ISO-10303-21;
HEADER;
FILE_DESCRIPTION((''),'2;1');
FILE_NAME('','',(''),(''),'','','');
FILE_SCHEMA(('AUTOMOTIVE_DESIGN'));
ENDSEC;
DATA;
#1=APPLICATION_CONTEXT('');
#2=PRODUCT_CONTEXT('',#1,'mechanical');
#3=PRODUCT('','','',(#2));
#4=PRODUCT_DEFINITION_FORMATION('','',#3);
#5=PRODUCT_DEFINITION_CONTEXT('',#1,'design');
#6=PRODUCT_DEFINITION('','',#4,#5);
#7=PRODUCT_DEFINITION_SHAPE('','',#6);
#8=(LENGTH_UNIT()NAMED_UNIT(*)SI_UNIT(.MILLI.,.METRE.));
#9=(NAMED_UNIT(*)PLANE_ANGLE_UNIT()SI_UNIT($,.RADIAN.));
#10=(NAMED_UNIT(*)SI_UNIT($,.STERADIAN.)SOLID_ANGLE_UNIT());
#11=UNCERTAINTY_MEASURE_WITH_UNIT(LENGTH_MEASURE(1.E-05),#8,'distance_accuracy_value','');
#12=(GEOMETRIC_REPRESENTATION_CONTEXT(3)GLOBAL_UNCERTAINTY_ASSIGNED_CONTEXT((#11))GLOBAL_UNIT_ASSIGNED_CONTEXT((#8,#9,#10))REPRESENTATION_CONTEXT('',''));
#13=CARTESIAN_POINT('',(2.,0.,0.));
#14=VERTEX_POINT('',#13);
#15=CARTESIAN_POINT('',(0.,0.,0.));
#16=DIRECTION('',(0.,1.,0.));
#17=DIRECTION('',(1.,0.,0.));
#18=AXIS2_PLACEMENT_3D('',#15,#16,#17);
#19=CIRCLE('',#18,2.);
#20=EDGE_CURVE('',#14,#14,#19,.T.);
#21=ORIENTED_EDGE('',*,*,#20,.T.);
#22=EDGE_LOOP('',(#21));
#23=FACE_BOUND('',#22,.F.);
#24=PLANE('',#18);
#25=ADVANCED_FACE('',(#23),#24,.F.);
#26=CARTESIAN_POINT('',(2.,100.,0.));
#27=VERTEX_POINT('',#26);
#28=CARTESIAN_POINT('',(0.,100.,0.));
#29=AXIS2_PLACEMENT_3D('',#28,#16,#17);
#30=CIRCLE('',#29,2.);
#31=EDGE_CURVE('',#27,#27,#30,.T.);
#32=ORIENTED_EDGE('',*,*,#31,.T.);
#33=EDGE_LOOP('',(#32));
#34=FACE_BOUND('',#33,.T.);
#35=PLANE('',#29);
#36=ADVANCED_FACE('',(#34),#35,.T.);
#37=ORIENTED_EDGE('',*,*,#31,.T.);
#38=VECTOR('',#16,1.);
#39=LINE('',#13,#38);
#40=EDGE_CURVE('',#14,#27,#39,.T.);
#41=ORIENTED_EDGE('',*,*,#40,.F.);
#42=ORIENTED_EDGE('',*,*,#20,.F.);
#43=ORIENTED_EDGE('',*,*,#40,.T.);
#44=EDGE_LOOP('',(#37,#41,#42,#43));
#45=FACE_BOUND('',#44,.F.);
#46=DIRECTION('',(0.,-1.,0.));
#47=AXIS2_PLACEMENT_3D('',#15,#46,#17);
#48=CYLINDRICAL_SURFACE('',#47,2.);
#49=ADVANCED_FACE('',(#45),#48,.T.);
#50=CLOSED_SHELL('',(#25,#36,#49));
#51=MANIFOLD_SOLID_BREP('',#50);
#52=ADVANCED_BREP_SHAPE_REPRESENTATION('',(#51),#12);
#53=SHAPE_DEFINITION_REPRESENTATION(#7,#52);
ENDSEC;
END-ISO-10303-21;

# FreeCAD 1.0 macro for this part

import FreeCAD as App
import Part
import Sketcher
from FreeCAD import Vector
Q = App.Units.Quantity

doc = App.newDocument("Part")
body = doc.addObject("PartDesign::Body", "Body")

sketch1 = body.newObject("Sketcher::SketchObject", "Sketch")
sketch1.AttachmentSupport = (doc.getObject("XZ_Plane"), [""])
sketch1.MapMode = "FlatFace"
sketch1.addGeometry(Part.Circle(Vector(0, 0, 0), Vector(0, 0, 1), 2), False)
sketch1.addConstraint([
    Sketcher.Constraint("Coincident", 0, 3, -1, 1),
    Sketcher.Constraint("Diameter", 0, Q("4 mm")),
])
pad1 = body.newObject("PartDesign::Pad", "Pad")
pad1.Profile = sketch1
pad1.Length = 100
pad1.Reversed = True

doc.recompute()
